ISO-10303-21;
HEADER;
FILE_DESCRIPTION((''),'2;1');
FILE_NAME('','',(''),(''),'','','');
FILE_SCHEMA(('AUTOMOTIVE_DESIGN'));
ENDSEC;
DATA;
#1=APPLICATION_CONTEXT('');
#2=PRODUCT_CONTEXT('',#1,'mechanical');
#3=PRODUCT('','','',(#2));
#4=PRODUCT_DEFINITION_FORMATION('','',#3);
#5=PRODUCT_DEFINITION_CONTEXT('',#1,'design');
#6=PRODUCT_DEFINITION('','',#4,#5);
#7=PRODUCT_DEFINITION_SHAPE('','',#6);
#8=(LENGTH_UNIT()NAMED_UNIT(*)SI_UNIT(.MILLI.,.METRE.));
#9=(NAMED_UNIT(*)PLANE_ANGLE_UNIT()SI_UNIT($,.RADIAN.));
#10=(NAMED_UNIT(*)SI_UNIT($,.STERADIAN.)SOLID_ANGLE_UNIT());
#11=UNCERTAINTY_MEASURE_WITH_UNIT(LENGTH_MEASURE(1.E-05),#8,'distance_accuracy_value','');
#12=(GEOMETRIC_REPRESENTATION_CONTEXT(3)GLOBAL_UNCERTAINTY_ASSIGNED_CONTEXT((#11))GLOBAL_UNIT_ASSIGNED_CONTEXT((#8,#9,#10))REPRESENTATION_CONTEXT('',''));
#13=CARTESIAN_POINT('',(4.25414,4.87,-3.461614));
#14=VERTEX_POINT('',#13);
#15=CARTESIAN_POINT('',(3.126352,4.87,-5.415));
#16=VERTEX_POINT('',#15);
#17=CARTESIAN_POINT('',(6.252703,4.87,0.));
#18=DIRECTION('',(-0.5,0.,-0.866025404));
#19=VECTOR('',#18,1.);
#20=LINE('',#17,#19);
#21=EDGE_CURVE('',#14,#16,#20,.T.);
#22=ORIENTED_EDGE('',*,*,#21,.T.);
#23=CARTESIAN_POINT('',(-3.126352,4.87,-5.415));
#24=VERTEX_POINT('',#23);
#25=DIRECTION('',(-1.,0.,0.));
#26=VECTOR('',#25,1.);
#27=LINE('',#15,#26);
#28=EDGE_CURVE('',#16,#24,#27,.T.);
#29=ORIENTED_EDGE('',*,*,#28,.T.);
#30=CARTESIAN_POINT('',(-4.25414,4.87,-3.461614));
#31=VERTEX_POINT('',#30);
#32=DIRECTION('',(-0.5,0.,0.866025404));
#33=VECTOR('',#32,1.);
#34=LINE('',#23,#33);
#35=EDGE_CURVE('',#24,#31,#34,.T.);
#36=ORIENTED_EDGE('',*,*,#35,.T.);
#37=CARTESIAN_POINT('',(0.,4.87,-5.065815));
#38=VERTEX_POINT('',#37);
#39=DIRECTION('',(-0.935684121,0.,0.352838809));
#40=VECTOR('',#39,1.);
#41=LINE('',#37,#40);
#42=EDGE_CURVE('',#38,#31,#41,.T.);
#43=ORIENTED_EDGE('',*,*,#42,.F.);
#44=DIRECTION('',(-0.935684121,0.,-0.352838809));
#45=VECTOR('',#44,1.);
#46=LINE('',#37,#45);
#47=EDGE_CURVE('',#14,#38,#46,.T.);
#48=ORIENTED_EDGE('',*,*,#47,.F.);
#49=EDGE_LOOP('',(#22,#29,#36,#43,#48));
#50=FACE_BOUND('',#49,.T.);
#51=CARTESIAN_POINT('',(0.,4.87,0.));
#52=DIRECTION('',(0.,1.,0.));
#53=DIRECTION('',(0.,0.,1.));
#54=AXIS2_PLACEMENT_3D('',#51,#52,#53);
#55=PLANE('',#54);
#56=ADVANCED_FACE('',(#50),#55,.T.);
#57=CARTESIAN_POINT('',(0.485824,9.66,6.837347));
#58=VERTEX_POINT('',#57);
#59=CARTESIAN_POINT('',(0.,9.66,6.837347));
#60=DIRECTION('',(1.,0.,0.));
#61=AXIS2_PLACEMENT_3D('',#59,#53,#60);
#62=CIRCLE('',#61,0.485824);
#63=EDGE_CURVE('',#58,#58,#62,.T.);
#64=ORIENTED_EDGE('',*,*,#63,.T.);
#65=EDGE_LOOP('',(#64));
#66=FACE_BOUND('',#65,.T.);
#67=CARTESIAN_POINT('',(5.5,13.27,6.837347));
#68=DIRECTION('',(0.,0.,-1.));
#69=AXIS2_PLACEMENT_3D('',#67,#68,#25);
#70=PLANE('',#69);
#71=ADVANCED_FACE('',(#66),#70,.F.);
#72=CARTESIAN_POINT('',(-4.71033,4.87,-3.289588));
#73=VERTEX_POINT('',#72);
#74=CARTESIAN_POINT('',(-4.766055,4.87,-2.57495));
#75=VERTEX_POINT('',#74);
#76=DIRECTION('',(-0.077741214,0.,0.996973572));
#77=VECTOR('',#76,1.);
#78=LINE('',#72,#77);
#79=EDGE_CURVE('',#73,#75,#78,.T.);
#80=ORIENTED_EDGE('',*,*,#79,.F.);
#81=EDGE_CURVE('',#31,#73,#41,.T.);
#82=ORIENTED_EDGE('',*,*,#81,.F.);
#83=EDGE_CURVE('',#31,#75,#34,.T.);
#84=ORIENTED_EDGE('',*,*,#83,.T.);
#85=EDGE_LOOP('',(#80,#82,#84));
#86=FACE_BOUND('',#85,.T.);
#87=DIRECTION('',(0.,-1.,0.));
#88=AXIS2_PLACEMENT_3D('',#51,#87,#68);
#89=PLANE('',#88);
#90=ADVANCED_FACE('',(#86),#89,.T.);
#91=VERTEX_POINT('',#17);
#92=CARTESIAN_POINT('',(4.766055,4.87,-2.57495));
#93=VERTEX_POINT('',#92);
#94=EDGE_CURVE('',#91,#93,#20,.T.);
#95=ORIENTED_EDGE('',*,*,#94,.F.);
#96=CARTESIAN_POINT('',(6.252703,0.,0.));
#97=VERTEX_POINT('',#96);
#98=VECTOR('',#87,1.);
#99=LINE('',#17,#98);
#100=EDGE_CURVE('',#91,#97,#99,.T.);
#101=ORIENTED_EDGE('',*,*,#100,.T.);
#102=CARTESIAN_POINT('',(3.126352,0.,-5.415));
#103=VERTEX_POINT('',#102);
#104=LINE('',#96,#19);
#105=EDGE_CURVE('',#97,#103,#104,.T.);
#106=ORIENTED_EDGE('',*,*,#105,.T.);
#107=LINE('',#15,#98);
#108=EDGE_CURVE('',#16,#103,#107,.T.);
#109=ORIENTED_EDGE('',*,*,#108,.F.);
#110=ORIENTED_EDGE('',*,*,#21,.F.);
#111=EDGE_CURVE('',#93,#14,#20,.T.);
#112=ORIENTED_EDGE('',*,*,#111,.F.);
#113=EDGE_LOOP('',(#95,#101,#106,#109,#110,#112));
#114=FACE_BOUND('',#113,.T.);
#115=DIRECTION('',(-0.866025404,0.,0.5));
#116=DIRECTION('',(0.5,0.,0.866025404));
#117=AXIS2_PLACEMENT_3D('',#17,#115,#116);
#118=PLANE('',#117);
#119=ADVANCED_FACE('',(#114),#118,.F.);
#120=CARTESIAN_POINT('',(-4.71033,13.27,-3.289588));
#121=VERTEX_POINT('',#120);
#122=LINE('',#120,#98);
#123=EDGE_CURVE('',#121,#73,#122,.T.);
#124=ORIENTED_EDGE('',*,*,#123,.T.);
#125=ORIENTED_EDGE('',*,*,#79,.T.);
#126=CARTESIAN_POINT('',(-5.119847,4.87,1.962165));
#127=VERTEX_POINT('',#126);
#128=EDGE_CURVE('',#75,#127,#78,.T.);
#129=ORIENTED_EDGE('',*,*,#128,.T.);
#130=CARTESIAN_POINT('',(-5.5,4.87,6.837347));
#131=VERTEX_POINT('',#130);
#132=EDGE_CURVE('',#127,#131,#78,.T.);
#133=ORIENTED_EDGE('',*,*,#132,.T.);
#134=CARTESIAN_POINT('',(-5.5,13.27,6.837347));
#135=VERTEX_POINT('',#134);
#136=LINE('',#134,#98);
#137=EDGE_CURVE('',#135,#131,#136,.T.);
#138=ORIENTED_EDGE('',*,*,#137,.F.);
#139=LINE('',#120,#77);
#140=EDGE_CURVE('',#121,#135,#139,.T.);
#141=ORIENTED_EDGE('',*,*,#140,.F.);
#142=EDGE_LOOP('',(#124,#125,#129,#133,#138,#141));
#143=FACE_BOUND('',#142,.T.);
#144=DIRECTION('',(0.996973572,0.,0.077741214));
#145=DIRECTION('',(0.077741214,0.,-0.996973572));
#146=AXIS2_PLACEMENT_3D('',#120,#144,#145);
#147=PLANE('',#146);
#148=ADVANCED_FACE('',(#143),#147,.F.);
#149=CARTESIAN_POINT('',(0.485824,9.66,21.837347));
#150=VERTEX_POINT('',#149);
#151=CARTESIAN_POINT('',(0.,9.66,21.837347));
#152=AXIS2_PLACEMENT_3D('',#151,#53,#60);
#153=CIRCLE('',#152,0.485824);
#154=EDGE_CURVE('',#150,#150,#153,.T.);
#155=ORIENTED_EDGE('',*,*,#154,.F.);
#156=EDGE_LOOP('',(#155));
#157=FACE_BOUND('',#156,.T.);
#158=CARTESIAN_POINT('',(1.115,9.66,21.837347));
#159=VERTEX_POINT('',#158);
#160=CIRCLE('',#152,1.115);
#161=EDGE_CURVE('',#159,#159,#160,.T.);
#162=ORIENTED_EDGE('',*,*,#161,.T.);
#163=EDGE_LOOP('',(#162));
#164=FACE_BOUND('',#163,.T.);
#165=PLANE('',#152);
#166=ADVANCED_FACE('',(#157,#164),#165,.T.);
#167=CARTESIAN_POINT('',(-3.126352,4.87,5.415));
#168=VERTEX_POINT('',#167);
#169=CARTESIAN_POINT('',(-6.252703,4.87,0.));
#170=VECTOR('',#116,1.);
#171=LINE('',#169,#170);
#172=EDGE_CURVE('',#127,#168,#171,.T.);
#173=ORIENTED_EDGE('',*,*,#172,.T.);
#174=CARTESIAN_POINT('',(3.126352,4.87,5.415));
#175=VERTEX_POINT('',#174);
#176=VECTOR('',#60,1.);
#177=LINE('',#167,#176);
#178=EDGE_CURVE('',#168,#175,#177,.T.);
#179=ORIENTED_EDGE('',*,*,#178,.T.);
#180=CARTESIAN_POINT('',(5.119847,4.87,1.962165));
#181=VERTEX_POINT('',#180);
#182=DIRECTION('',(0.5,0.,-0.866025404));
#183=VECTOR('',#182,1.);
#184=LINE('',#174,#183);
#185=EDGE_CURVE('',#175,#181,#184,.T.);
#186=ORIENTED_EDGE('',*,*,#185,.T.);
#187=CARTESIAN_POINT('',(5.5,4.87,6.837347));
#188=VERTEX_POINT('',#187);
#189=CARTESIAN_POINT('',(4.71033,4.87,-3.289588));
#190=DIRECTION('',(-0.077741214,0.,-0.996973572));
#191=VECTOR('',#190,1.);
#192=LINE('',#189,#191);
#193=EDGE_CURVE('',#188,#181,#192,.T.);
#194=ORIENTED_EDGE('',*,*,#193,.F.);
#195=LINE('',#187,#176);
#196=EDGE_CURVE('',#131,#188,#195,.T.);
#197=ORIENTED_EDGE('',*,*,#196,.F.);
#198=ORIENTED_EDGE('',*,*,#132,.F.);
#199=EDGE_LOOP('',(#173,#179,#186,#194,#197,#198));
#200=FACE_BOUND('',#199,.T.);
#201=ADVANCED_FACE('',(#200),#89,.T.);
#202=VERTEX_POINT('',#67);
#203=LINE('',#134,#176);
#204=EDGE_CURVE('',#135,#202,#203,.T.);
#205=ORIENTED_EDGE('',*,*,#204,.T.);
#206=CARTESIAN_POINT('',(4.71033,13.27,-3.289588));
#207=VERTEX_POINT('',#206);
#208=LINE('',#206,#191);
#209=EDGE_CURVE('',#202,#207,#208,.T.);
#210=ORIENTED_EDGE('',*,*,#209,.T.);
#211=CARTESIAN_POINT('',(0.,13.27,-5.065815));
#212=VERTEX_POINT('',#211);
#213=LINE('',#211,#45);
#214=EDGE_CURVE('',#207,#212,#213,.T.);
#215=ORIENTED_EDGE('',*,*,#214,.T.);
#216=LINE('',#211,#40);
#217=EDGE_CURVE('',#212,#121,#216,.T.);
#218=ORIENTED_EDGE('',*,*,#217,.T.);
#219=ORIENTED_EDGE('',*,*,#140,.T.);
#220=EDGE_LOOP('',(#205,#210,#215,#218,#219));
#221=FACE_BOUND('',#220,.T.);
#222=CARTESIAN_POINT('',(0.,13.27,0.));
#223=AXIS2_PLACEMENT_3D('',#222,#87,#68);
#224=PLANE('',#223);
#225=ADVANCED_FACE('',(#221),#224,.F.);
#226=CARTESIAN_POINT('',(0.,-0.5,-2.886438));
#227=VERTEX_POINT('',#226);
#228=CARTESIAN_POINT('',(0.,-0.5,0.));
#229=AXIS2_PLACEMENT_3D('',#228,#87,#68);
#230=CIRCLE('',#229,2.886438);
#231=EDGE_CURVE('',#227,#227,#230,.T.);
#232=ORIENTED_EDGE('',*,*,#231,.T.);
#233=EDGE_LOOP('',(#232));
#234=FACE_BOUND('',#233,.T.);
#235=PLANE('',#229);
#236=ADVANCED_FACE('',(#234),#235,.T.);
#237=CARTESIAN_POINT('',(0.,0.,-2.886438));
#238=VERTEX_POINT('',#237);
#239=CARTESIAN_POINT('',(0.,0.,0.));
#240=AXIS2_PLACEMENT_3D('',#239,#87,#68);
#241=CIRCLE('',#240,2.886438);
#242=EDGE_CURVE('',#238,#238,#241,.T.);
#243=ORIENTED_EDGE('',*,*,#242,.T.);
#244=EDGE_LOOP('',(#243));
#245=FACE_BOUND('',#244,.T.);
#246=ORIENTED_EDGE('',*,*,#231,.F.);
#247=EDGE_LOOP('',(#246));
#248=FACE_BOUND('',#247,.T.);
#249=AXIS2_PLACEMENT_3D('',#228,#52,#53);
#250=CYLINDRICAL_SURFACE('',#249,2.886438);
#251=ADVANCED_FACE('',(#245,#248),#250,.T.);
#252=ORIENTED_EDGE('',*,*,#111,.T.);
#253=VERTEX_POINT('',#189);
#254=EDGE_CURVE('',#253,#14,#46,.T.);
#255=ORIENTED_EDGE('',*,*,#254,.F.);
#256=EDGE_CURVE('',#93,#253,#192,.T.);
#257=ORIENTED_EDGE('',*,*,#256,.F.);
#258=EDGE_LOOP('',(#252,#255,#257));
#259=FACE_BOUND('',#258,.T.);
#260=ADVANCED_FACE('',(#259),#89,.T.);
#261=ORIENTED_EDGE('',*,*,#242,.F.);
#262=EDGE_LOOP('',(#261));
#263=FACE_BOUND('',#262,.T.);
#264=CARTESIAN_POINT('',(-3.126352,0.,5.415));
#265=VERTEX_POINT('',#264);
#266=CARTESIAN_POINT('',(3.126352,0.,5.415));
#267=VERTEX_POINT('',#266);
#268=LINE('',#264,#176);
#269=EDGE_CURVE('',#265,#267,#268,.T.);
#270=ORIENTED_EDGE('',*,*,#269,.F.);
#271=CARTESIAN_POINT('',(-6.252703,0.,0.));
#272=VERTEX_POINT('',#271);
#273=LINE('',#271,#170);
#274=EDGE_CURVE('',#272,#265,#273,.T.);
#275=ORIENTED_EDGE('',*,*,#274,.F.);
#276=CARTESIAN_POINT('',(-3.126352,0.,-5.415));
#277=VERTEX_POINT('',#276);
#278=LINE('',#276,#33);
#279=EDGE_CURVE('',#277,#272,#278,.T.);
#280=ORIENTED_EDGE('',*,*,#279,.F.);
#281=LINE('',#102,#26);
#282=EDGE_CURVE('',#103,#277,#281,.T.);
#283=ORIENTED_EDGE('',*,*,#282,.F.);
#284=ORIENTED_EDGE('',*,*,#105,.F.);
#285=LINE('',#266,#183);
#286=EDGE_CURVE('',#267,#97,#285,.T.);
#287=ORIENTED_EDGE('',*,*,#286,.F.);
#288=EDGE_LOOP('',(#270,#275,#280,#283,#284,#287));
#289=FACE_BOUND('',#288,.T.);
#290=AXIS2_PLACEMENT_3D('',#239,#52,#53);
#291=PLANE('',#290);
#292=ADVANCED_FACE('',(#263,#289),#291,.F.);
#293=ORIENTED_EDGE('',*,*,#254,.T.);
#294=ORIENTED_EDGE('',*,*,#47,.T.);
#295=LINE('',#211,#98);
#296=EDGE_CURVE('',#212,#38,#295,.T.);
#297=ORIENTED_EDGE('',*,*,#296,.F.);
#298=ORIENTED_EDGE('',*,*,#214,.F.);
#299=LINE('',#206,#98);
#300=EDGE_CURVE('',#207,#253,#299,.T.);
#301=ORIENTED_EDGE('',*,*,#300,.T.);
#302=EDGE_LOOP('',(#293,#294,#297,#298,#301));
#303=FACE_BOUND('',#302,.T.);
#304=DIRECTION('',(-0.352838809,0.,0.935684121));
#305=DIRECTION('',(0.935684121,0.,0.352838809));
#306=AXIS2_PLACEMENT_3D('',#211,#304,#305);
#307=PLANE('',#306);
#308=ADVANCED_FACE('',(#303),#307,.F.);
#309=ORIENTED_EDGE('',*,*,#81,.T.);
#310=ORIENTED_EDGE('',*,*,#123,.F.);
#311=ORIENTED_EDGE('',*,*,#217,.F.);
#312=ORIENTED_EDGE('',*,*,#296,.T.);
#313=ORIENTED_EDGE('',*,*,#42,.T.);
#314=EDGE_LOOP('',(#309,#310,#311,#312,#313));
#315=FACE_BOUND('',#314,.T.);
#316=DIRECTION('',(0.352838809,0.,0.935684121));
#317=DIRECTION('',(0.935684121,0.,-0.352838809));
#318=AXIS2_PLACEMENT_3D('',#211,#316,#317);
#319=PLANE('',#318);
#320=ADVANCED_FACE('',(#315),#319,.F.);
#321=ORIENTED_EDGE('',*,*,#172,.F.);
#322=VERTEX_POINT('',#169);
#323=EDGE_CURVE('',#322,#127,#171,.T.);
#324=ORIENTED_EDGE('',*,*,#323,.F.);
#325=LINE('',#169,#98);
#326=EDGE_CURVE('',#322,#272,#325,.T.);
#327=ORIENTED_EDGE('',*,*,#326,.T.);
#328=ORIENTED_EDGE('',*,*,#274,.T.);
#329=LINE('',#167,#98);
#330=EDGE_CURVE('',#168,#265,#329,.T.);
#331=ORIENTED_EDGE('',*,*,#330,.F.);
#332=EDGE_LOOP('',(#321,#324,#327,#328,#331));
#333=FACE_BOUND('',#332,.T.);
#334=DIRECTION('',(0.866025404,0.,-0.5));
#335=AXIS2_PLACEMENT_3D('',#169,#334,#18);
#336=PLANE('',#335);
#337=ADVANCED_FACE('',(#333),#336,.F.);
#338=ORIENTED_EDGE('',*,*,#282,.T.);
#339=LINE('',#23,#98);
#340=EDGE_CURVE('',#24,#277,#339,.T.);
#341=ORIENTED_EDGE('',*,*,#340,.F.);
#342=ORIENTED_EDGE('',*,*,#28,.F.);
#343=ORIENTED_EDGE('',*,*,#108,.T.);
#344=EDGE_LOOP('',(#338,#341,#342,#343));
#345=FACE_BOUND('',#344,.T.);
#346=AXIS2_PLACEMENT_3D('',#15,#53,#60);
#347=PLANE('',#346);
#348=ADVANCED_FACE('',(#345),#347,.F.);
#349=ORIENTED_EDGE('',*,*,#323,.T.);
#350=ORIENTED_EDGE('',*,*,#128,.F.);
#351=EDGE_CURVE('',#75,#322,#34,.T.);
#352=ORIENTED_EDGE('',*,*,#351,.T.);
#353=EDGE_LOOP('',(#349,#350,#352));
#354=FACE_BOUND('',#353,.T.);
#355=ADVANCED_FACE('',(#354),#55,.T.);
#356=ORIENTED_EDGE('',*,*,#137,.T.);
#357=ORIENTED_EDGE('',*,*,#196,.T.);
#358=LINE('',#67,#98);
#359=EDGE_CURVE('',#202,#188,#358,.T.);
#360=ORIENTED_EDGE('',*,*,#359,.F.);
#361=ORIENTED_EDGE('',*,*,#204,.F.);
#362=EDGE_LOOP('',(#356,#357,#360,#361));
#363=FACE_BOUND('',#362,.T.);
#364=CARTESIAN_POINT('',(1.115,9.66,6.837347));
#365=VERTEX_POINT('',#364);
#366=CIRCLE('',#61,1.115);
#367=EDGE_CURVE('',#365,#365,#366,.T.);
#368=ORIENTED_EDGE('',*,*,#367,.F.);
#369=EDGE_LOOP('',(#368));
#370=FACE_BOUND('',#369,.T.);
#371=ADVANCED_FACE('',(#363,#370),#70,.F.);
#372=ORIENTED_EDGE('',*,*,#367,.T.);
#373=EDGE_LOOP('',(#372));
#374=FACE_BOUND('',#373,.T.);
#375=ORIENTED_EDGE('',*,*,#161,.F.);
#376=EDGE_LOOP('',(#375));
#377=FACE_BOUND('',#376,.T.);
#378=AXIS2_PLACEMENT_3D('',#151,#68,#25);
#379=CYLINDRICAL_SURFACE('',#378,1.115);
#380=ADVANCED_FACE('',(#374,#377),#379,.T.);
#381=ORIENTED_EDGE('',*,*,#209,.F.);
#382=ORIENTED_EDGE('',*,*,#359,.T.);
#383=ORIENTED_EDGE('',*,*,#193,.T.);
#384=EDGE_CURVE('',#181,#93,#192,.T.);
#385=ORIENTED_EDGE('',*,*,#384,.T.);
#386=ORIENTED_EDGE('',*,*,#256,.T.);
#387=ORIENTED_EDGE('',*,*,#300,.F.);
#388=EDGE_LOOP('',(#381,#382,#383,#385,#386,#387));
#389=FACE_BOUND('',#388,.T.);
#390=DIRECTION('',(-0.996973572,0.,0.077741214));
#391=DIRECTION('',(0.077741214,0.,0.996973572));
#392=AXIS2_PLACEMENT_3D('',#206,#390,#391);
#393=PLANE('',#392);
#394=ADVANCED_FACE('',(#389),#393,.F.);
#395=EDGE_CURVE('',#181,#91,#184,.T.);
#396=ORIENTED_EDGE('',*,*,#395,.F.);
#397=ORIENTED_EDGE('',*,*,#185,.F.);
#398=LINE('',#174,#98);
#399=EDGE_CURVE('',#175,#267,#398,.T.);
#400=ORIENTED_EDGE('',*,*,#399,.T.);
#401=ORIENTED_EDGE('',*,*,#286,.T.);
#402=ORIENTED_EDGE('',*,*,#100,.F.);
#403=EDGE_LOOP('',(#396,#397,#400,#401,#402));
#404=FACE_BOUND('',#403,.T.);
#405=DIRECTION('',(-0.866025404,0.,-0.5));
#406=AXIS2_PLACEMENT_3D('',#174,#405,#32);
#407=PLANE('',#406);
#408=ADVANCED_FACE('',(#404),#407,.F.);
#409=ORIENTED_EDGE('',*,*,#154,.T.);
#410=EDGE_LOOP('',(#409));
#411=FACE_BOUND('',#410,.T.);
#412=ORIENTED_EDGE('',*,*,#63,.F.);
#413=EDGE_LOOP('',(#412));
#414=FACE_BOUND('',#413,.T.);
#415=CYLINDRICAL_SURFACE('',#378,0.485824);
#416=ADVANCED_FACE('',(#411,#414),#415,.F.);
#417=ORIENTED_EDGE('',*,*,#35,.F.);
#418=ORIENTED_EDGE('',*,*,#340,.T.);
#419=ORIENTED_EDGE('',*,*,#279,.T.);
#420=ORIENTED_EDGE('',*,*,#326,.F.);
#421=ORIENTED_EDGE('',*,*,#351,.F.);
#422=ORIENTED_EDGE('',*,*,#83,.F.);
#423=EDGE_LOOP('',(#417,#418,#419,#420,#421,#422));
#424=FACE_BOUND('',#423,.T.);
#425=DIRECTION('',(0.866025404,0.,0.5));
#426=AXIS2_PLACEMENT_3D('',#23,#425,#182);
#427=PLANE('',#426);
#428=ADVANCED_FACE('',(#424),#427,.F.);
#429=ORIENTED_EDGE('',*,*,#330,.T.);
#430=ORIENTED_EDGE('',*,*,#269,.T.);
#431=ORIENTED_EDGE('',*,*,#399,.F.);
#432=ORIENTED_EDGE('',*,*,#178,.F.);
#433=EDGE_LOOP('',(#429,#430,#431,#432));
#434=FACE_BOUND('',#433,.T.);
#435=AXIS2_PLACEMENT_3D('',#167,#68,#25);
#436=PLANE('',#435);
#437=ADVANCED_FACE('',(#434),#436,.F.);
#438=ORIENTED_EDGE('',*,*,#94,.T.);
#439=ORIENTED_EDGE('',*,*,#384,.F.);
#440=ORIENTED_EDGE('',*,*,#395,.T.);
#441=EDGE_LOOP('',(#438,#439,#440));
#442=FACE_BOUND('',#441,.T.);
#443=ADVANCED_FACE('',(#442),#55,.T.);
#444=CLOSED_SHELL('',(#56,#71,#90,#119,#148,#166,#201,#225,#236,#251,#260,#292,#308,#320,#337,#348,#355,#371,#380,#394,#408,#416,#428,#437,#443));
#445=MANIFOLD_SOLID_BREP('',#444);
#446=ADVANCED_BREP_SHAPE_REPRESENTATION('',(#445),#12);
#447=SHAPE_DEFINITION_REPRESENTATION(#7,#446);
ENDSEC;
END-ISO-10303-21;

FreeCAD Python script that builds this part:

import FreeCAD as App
import Part
import Sketcher

V = App.Vector
Q = App.Units.Quantity


def add_polygon(sketch, points):
    """Adds a closed chain of lines whose ends are joined by coincident constraints."""
    first, n = sketch.GeometryCount, len(points)
    for a, b in zip(points, points[1:] + points[:1]):
        sketch.addGeometry(Part.LineSegment(App.Vector(*a, 0), App.Vector(*b, 0)), False)
    for i in range(n):
        sketch.addConstraint(Sketcher.Constraint("Coincident", first + i, 2, first + (i + 1) % n, 1))

doc = App.newDocument("Part")
params = doc.addObject("Spreadsheet::Sheet", "Params")
for row, (alias, value) in enumerate([
    ("pad1_length", "4.87 mm"),
    ("sketch2_width", "11 mm"),
    ("pad2_length", "8.4 mm"),
    ("sketch3_diameter", "2.23 mm"),
    ("pad3_length", "15 mm"),
    ("pad4_length", "0.5 mm"),
], start=1):
    params.set(f"A{row}", alias)
    params.set(f"B{row}", "=" + value)
    params.setAlias(f"B{row}", alias)

body = doc.addObject("PartDesign::Body", "Body")

sketch1 = body.newObject("Sketcher::SketchObject", "Sketch")
sketch1.AttachmentSupport = (doc.getObject("XZ_Plane"), [""])
sketch1.MapMode = "FlatFace"
add_polygon(sketch1, [(6, 0), (3, -5), (-3, -5), (-6, 0), (-3, 5), (3, 5)])
sketch1.addConstraint(Sketcher.Constraint("Horizontal", 1))
sketch1.addConstraint(Sketcher.Constraint("Horizontal", 4))
sketch1.addConstraint(Sketcher.Constraint("Symmetric", 0, 2, 3, 2, -1, 1))
sketch1.addConstraint(Sketcher.Constraint("Symmetric", 2, 2, 5, 2, -1, 1))
sketch1.addConstraint(Sketcher.Constraint("PointOnObject", 2, 2, -1))
sketch1.addConstraint(Sketcher.Constraint("Parallel", 2, 5))
sketch1.addConstraint(Sketcher.Constraint("Vertical", 1, 2, 3, 2))
sketch1.addConstraint(Sketcher.Constraint("Angle", 0, Q("-120 deg")))
sketch1.addConstraint(Sketcher.Constraint("DistanceY", 1, 2, 3, 2, 10.83))
sketch1.addConstraint(Sketcher.Constraint("DistanceX", 1, 2, 1, 1, 6.252703))
pad1 = body.newObject("PartDesign::Pad", "Pad")
pad1.Profile = sketch1
pad1.setExpression("Length", "Params.pad1_length")
pad1.Reversed = True

sketch2 = body.newObject("Sketcher::SketchObject", "Sketch001")
sketch2.AttachmentSupport = (doc.getObject("XZ_Plane"), [""])
sketch2.MapMode = "FlatFace"
sketch2.AttachmentOffset = App.Placement(V(0, 0, -4.87), App.Rotation())
add_polygon(sketch2, [(0, -5), (-5, -3), (-6, 7), (6, 7), (5, -3)])
sketch2.addConstraint(Sketcher.Constraint("Horizontal", 2))
sketch2.addConstraint(Sketcher.Constraint("Symmetric", 0, 2, 3, 2, -2))
sketch2.addConstraint(Sketcher.Constraint("PointOnObject", 4, 2, -2))
sketch2.addConstraint(Sketcher.Constraint("Equal", 1, 3))
sketch2.addConstraint(Sketcher.Constraint("DistanceX", 2, 1, 2, 2, 11.0))
sketch2.addConstraint(Sketcher.Constraint("DistanceX", 0, 2, -1, 1, 4.71033))
sketch2.addConstraint(Sketcher.Constraint("DistanceY", 0, 2, -1, 1, 3.289588))
sketch2.addConstraint(Sketcher.Constraint("Distance", 0, 5.034103))
sketch2.addConstraint(Sketcher.Constraint("Distance", 1, 10.157677))
sketch2.setExpression("Constraints[9]", "Params.sketch2_width")
pad2 = body.newObject("PartDesign::Pad", "Pad001")
pad2.Profile = sketch2
pad2.setExpression("Length", "Params.pad2_length")
pad2.Reversed = True

sketch3 = body.newObject("Sketcher::SketchObject", "Sketch002")
sketch3.AttachmentSupport = (doc.getObject("XY_Plane"), [""])
sketch3.MapMode = "FlatFace"
sketch3.AttachmentOffset = App.Placement(V(0, 0, 6.837347), App.Rotation())
sketch3.addGeometry(Part.Circle(V(0, 9.66, 0), V(0, 0, 1), 1.11), False)
sketch3.addGeometry(Part.Circle(V(0, 9.66, 0), V(0, 0, 1), 0.49), False)
sketch3.addConstraint(Sketcher.Constraint("Coincident", 1, 3, 0, 3))
sketch3.addConstraint(Sketcher.Constraint("PointOnObject", 0, 3, -2))
sketch3.addConstraint(Sketcher.Constraint("Diameter", 0, 2.23))
sketch3.addConstraint(Sketcher.Constraint("DistanceY", -1, 1, 0, 3, 9.66))
sketch3.addConstraint(Sketcher.Constraint("Diameter", 1, 0.971647))
sketch3.setExpression("Constraints[2]", "Params.sketch3_diameter")
pad3 = body.newObject("PartDesign::Pad", "Pad002")
pad3.Profile = sketch3
pad3.setExpression("Length", "Params.pad3_length")

sketch4 = body.newObject("Sketcher::SketchObject", "Sketch003")
sketch4.AttachmentSupport = (doc.getObject("XZ_Plane"), [""])
sketch4.MapMode = "FlatFace"
sketch4.addGeometry(Part.Circle(V(0, 0, 0), V(0, 0, 1), 2.9), False)
sketch4.addConstraint(Sketcher.Constraint("Coincident", 0, 3, -1, 1))
sketch4.addConstraint(Sketcher.Constraint("Diameter", 0, 5.772876))
pad4 = body.newObject("PartDesign::Pad", "Pad003")
pad4.Profile = sketch4
pad4.setExpression("Length", "Params.pad4_length")

doc.recompute()
